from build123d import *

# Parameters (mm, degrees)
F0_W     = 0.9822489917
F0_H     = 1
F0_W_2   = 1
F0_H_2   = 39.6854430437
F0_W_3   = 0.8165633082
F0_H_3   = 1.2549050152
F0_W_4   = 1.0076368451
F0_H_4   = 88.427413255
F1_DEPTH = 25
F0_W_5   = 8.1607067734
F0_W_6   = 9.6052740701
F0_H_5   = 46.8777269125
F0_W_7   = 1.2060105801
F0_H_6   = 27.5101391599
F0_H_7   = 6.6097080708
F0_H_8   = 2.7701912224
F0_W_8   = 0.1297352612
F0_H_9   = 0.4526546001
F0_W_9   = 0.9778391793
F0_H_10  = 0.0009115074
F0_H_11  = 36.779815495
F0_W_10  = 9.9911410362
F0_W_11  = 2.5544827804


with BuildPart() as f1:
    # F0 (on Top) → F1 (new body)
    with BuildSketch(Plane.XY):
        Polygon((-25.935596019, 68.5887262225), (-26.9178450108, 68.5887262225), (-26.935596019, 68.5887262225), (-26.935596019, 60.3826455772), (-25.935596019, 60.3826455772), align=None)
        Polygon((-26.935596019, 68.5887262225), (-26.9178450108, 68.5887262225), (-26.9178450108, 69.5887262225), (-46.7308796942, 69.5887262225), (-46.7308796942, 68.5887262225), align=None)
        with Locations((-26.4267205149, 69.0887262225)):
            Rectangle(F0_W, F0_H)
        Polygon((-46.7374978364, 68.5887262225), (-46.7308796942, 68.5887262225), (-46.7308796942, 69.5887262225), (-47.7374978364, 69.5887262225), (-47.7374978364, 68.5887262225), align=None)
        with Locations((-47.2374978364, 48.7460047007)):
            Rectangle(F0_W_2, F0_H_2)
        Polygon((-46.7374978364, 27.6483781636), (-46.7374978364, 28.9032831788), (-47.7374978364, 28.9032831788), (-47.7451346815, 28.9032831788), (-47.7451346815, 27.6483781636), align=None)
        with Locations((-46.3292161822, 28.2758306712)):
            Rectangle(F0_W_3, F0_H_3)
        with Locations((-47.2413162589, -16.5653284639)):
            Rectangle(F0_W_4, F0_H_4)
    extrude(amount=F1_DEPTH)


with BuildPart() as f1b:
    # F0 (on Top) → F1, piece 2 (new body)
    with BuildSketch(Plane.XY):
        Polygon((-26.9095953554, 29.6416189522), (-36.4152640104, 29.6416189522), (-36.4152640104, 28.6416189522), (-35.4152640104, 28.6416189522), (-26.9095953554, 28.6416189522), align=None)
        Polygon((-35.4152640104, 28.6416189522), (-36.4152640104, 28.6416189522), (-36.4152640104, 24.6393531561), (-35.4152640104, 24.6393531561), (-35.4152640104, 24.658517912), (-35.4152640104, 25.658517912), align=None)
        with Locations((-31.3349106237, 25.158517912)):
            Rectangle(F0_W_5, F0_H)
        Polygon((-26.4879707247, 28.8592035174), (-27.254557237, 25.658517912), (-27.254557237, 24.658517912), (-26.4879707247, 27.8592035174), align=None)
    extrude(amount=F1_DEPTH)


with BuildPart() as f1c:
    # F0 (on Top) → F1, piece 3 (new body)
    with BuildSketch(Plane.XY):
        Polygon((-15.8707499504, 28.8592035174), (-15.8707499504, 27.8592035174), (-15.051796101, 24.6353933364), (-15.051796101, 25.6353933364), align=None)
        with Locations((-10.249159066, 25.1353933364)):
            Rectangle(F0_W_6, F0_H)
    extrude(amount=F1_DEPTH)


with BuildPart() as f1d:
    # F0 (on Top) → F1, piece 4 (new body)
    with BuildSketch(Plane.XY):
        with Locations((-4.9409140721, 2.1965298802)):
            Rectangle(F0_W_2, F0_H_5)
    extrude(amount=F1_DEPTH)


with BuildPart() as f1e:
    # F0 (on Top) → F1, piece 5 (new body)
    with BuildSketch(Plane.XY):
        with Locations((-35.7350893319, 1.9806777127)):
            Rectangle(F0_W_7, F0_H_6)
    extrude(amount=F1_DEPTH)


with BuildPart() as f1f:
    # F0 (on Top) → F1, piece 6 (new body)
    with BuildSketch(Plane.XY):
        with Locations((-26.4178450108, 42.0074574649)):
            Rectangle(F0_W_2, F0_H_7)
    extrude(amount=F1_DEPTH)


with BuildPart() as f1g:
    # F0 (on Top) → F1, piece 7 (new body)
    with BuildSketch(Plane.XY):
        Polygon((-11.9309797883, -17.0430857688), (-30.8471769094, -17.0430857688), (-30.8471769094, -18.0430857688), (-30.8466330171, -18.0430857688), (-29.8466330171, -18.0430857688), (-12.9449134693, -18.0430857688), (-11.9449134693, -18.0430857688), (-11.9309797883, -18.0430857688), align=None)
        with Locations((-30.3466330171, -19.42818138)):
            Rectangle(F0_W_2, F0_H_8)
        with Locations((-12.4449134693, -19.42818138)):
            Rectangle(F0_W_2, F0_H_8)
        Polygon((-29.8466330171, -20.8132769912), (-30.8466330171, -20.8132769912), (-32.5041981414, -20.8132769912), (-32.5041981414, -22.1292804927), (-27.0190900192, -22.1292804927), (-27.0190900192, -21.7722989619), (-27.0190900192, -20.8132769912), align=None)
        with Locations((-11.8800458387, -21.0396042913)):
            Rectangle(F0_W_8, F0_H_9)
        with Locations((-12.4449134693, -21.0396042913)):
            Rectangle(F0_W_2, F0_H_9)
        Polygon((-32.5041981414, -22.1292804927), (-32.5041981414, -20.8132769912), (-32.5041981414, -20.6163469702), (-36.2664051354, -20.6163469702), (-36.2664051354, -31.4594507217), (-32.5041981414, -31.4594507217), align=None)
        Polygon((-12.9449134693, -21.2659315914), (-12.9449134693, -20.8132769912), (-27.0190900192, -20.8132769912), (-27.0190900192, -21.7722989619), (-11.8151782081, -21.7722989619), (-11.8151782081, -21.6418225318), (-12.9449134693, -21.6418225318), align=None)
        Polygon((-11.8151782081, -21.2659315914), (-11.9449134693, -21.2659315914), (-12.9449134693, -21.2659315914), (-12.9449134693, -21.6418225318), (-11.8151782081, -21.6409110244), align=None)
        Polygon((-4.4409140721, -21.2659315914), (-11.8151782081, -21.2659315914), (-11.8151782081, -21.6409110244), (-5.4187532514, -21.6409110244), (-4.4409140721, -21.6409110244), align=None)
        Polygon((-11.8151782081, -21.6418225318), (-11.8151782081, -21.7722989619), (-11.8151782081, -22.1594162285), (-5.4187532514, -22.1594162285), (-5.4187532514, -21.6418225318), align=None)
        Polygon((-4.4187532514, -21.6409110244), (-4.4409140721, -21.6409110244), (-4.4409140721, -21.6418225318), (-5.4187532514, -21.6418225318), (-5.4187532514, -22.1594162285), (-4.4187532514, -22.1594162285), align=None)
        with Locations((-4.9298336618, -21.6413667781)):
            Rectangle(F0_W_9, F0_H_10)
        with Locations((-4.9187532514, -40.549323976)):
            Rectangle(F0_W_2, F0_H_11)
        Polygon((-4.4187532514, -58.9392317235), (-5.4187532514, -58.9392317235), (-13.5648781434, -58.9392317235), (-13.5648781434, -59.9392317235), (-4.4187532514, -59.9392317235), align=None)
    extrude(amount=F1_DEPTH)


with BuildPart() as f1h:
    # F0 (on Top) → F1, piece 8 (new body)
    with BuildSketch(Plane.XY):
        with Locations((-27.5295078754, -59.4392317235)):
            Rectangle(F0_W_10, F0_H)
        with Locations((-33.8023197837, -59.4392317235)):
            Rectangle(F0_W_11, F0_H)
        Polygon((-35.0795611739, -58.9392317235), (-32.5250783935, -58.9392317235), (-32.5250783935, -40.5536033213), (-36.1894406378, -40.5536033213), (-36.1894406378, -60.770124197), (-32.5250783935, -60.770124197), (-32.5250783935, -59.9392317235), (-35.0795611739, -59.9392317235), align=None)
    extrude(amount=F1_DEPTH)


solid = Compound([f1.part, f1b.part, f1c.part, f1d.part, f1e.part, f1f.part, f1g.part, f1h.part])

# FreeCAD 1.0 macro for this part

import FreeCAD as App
import Part
import Sketcher

V = App.Vector
Q = App.Units.Quantity


def add_polygon(sketch, points):
    """Adds a closed chain of lines whose ends are joined by coincident constraints."""
    first, n = sketch.GeometryCount, len(points)
    for a, b in zip(points, points[1:] + points[:1]):
        sketch.addGeometry(Part.LineSegment(App.Vector(*a, 0), App.Vector(*b, 0)), False)
    for i in range(n):
        sketch.addConstraint(Sketcher.Constraint("Coincident", first + i, 2, first + (i + 1) % n, 1))

doc = App.newDocument("Part")
body = doc.addObject("PartDesign::Body", "Body")

sketch1 = doc.addObject("Sketcher::SketchObject", "Sketch")
body.addObject(sketch1)
sketch1.AttachmentSupport = (doc.XY_Plane, [""])
sketch1.MapMode = "FlatFace"
add_polygon(sketch1, [(-26.936, 68.589), (-26.936, 60.383), (-25.936, 60.383), (-25.936, 68.589), (-25.936, 69.589), (-47.737, 69.589), (-47.737, 28.903), (-47.745, 28.903), (-47.745, -60.779), (-46.737, -60.779), (-46.737, 27.648), (-45.921, 27.648), (-45.921, 28.903), (-46.737, 28.903), (-46.737, 68.589)])
sketch1.addConstraint(Sketcher.Constraint("Vertical", 0))
sketch1.addConstraint(Sketcher.Constraint("Horizontal", 1))
sketch1.addConstraint(Sketcher.Constraint("Vertical", 2))
sketch1.addConstraint(Sketcher.Constraint("Vertical", 3))
sketch1.addConstraint(Sketcher.Constraint("Horizontal", 4))
sketch1.addConstraint(Sketcher.Constraint("Vertical", 5))
sketch1.addConstraint(Sketcher.Constraint("Horizontal", 6))
sketch1.addConstraint(Sketcher.Constraint("Vertical", 7))
sketch1.addConstraint(Sketcher.Constraint("Horizontal", 8))
sketch1.addConstraint(Sketcher.Constraint("Vertical", 9))
sketch1.addConstraint(Sketcher.Constraint("Horizontal", 10))
sketch1.addConstraint(Sketcher.Constraint("Vertical", 11))
sketch1.addConstraint(Sketcher.Constraint("Horizontal", 12))
sketch1.addConstraint(Sketcher.Constraint("Vertical", 13))
sketch1.addConstraint(Sketcher.Constraint("Horizontal", 14))
sketch1.addConstraint(Sketcher.Constraint("Horizontal", 6, 2, 11, 2))
sketch1.addConstraint(Sketcher.Constraint("Horizontal", 2, 2, 13, 2))
sketch1.addConstraint(Sketcher.Constraint("Vertical", 9, 2, 12, 2))
sketch1.addConstraint(Sketcher.Constraint("Equal", 1, 3))
sketch1.addConstraint(Sketcher.Constraint("DistanceX", 1, 1, 1, 2, Q("1 mm")))
sketch1.addConstraint(Sketcher.Constraint("DistanceX", 5, 2, 8, 2, Q("1 mm")))
sketch1.addConstraint(Sketcher.Constraint("DistanceX", 4, 2, 4, 1, Q("21.801902 mm")))
sketch1.addConstraint(Sketcher.Constraint("DistanceY", 0, 2, 0, 1, Q("8.206081 mm")))
sketch1.addConstraint(Sketcher.Constraint("DistanceY", 7, 2, 7, 1, Q("89.682318 mm")))
sketch1.addConstraint(Sketcher.Constraint("DistanceX", 6, 2, 10, 2, Q("1.8242 mm")))
sketch1.addConstraint(Sketcher.Constraint("DistanceX", 6, 2, 6, 1, Q("0.007637 mm")))
sketch1.addConstraint(Sketcher.Constraint("DistanceY", 5, 2, 5, 1, Q("40.685443 mm")))
sketch1.addConstraint(Sketcher.Constraint("DistanceY", 9, 1, 9, 2, Q("88.427413 mm")))
sketch1.addConstraint(Sketcher.Constraint("DistanceY", -1, 1, 9, 2, Q("27.648378 mm")))
sketch1.addConstraint(Sketcher.Constraint("DistanceX", 0, 2, -1, 1, Q("26.935596 mm")))
pad1 = doc.addObject("PartDesign::Pad", "Pad")
body.addObject(pad1)
pad1.Profile = sketch1
pad1.Length = 25
body2 = doc.addObject("PartDesign::Body", "Body001")

sketch2 = doc.addObject("Sketcher::SketchObject", "Sketch001")
body2.addObject(sketch2)
sketch2.AttachmentSupport = (doc.getObject("XY_Plane001"), [""])
sketch2.MapMode = "FlatFace"
add_polygon(sketch2, [(-26.91, 29.642), (-36.415, 29.642), (-36.415, 24.639), (-35.415, 24.639), (-35.415, 24.659), (-27.255, 24.659), (-26.488, 27.859), (-26.488, 28.859), (-27.255, 25.659), (-35.415, 25.659), (-35.415, 28.642), (-26.91, 28.642)])
sketch2.addConstraint(Sketcher.Constraint("Horizontal", 0))
sketch2.addConstraint(Sketcher.Constraint("Vertical", 1))
sketch2.addConstraint(Sketcher.Constraint("Horizontal", 2))
sketch2.addConstraint(Sketcher.Constraint("Vertical", 3))
sketch2.addConstraint(Sketcher.Constraint("Horizontal", 4))
sketch2.addConstraint(Sketcher.Constraint("Vertical", 6))
sketch2.addConstraint(Sketcher.Constraint("Horizontal", 8))
sketch2.addConstraint(Sketcher.Constraint("Vertical", 9))
sketch2.addConstraint(Sketcher.Constraint("Horizontal", 10))
sketch2.addConstraint(Sketcher.Constraint("Vertical", 11))
sketch2.addConstraint(Sketcher.Constraint("Parallel", 5, 7))
sketch2.addConstraint(Sketcher.Constraint("Vertical", 4, 2, 7, 2))
sketch2.addConstraint(Sketcher.Constraint("Vertical", 3, 2, 8, 2))
sketch2.addConstraint(Sketcher.Constraint("Equal", 2, 6))
sketch2.addConstraint(Sketcher.Constraint("Equal", 6, 11))
sketch2.addConstraint(Sketcher.Constraint("DistanceX", 2, 1, 2, 2, Q("1 mm")))
sketch2.addConstraint(Sketcher.Constraint("DistanceY", 9, 1, 9, 2, Q("2.983101 mm")))
sketch2.addConstraint(Sketcher.Constraint("DistanceX", 0, 2, 0, 1, Q("9.505669 mm")))
sketch2.addConstraint(Sketcher.Constraint("DistanceX", 4, 1, 4, 2, Q("8.160707 mm")))
sketch2.addConstraint(Sketcher.Constraint("DistanceY", 1, 2, 1, 1, Q("5.002266 mm")))
sketch2.addConstraint(Sketcher.Constraint("DistanceY", -1, 1, 0, 2, Q("29.641619 mm")))
sketch2.addConstraint(Sketcher.Constraint("DistanceX", 5, 2, -1, 1, Q("26.487971 mm")))
sketch2.addConstraint(Sketcher.Constraint("DistanceY", 2, 2, 5, 2, Q("3.21985 mm")))
sketch2.addConstraint(Sketcher.Constraint("Distance", 5, Q("3.291207 mm")))
pad2 = doc.addObject("PartDesign::Pad", "Pad001")
body2.addObject(pad2)
pad2.Profile = sketch2
pad2.Length = 25
body3 = doc.addObject("PartDesign::Body", "Body002")

sketch3 = doc.addObject("Sketcher::SketchObject", "Sketch002")
body3.addObject(sketch3)
sketch3.AttachmentSupport = (doc.getObject("XY_Plane002"), [""])
sketch3.MapMode = "FlatFace"
add_polygon(sketch3, [(-15.9, 28.9), (-15.9, 27.9), (-15.1, 24.6), (-5.4, 24.6), (-5.4, 25.6), (-15.1, 25.6)])
sketch3.addConstraint(Sketcher.Constraint("Vertical", 0))
sketch3.addConstraint(Sketcher.Constraint("Horizontal", 2))
sketch3.addConstraint(Sketcher.Constraint("Vertical", 3))
sketch3.addConstraint(Sketcher.Constraint("Horizontal", 4))
sketch3.addConstraint(Sketcher.Constraint("Parallel", 1, 5))
sketch3.addConstraint(Sketcher.Constraint("Vertical", 1, 2, 4, 2))
sketch3.addConstraint(Sketcher.Constraint("DistanceY", 0, 2, 0, 1, Q("1 mm")))
sketch3.addConstraint(Sketcher.Constraint("DistanceX", 2, 1, 2, 2, Q("9.605274 mm")))
sketch3.addConstraint(Sketcher.Constraint("DistanceX", 0, 2, -1, 1, Q("15.87075 mm")))
sketch3.addConstraint(Sketcher.Constraint("DistanceY", 1, 2, 0, 2, Q("3.22381 mm")))
sketch3.addConstraint(Sketcher.Constraint("Distance", 1, Q("3.326205 mm")))
sketch3.addConstraint(Sketcher.Constraint("DistanceY", -1, 1, 0, 2, Q("27.859204 mm")))
pad3 = doc.addObject("PartDesign::Pad", "Pad002")
body3.addObject(pad3)
pad3.Profile = sketch3
pad3.Length = 25
body4 = doc.addObject("PartDesign::Body", "Body003")

sketch4 = doc.addObject("Sketcher::SketchObject", "Sketch003")
body4.addObject(sketch4)
sketch4.AttachmentSupport = (doc.getObject("XY_Plane003"), [""])
sketch4.MapMode = "FlatFace"
add_polygon(sketch4, [(-5.4, 25.6), (-5.4, -21.2), (-4.4, -21.2), (-4.4, 25.6)])
sketch4.addConstraint(Sketcher.Constraint("Vertical", 0))
sketch4.addConstraint(Sketcher.Constraint("Horizontal", 1))
sketch4.addConstraint(Sketcher.Constraint("Vertical", 2))
sketch4.addConstraint(Sketcher.Constraint("Horizontal", 3))
sketch4.addConstraint(Sketcher.Constraint("DistanceX", 1, 1, 1, 2, Q("1 mm")))
sketch4.addConstraint(Sketcher.Constraint("DistanceY", 0, 2, 0, 1, Q("46.877727 mm")))
sketch4.addConstraint(Sketcher.Constraint("DistanceX", 0, 2, -1, 1, Q("5.440914 mm")))
sketch4.addConstraint(Sketcher.Constraint("DistanceY", 0, 2, -1, 1, Q("21.242334 mm")))
pad4 = doc.addObject("PartDesign::Pad", "Pad003")
body4.addObject(pad4)
pad4.Profile = sketch4
pad4.Length = 25
body5 = doc.addObject("PartDesign::Body", "Body004")

sketch5 = doc.addObject("Sketcher::SketchObject", "Sketch004")
body5.addObject(sketch5)
sketch5.AttachmentSupport = (doc.getObject("XY_Plane004"), [""])
sketch5.MapMode = "FlatFace"
add_polygon(sketch5, [(-36.3, 15.7), (-36.3, -11.8), (-35.1, -11.8), (-35.1, 15.7)])
sketch5.addConstraint(Sketcher.Constraint("Vertical", 0))
sketch5.addConstraint(Sketcher.Constraint("Horizontal", 1))
sketch5.addConstraint(Sketcher.Constraint("Vertical", 2))
sketch5.addConstraint(Sketcher.Constraint("Horizontal", 3))
sketch5.addConstraint(Sketcher.Constraint("DistanceX", 1, 1, 1, 2, Q("1.206011 mm")))
sketch5.addConstraint(Sketcher.Constraint("DistanceY", 0, 2, 0, 1, Q("27.510139 mm")))
sketch5.addConstraint(Sketcher.Constraint("DistanceY", 0, 2, -1, 1, Q("11.774392 mm")))
sketch5.addConstraint(Sketcher.Constraint("DistanceX", 0, 2, -1, 1, Q("36.338095 mm")))
pad5 = doc.addObject("PartDesign::Pad", "Pad004")
body5.addObject(pad5)
pad5.Profile = sketch5
pad5.Length = 25
body6 = doc.addObject("PartDesign::Body", "Body005")

sketch6 = doc.addObject("Sketcher::SketchObject", "Sketch005")
body6.addObject(sketch6)
sketch6.AttachmentSupport = (doc.getObject("XY_Plane005"), [""])
sketch6.MapMode = "FlatFace"
add_polygon(sketch6, [(-26.9, 45.3), (-26.9, 38.7), (-25.9, 38.7), (-25.9, 45.3)])
sketch6.addConstraint(Sketcher.Constraint("Vertical", 0))
sketch6.addConstraint(Sketcher.Constraint("Horizontal", 1))
sketch6.addConstraint(Sketcher.Constraint("Vertical", 2))
sketch6.addConstraint(Sketcher.Constraint("Horizontal", 3))
sketch6.addConstraint(Sketcher.Constraint("DistanceX", 1, 1, 1, 2, Q("1 mm")))
sketch6.addConstraint(Sketcher.Constraint("DistanceY", 0, 2, 0, 1, Q("6.609708 mm")))
sketch6.addConstraint(Sketcher.Constraint("DistanceY", -1, 1, 2, 2, Q("45.312311 mm")))
sketch6.addConstraint(Sketcher.Constraint("DistanceX", 0, 2, -1, 1, Q("26.917845 mm")))
pad6 = doc.addObject("PartDesign::Pad", "Pad005")
body6.addObject(pad6)
pad6.Profile = sketch6
pad6.Length = 25
body7 = doc.addObject("PartDesign::Body", "Body006")

sketch7 = doc.addObject("Sketcher::SketchObject", "Sketch006")
body7.addObject(sketch7)
sketch7.AttachmentSupport = (doc.getObject("XY_Plane006"), [""])
sketch7.MapMode = "FlatFace"
add_polygon(sketch7, [(-4.4188, -21.6409), (-4.4409, -21.6409), (-4.4409, -21.2659), (-11.8152, -21.2659), (-11.8152, -20.8133), (-11.9449, -20.8133), (-11.9449, -18.0431), (-11.931, -18.0431), (-11.931, -17.0431), (-30.8472, -17.0431), (-30.8472, -18.0431), (-30.8466, -18.0431), (-30.8466, -20.8133), (-32.5042, -20.8133), (-32.5042, -20.6163), (-36.2664, -20.6163), (-36.2664, -31.4595), (-32.5042, -31.4595), (-32.5042, -22.1293), (-27.0191, -22.1293), (-27.0191, -21.7723), (-11.8152, -21.7723), (-11.8152, -22.1594), (-5.4188, -22.1594), (-5.4188, -58.9392), (-13.5649, -58.9392), (-13.5649, -59.9392), (-4.4188, -59.9392)])
add_polygon(sketch7, [(-11.8152, -21.6409), (-5.4188, -21.6409), (-5.4188, -21.6418), (-12.9449, -21.6418)])
add_polygon(sketch7, [(-29.8466, -20.8133), (-29.8466, -18.0431), (-12.9449, -18.0431), (-12.9449, -20.8133)])
sketch7.addConstraint(Sketcher.Constraint("Horizontal", 0))
sketch7.addConstraint(Sketcher.Constraint("Vertical", 1))
sketch7.addConstraint(Sketcher.Constraint("Horizontal", 2))
sketch7.addConstraint(Sketcher.Constraint("Vertical", 3))
sketch7.addConstraint(Sketcher.Constraint("Horizontal", 4))
sketch7.addConstraint(Sketcher.Constraint("Vertical", 5))
sketch7.addConstraint(Sketcher.Constraint("Horizontal", 6))
sketch7.addConstraint(Sketcher.Constraint("Vertical", 7))
sketch7.addConstraint(Sketcher.Constraint("Horizontal", 8))
sketch7.addConstraint(Sketcher.Constraint("Vertical", 9))
sketch7.addConstraint(Sketcher.Constraint("Horizontal", 10))
sketch7.addConstraint(Sketcher.Constraint("Vertical", 11))
sketch7.addConstraint(Sketcher.Constraint("Horizontal", 12))
sketch7.addConstraint(Sketcher.Constraint("Vertical", 13))
sketch7.addConstraint(Sketcher.Constraint("Horizontal", 14))
sketch7.addConstraint(Sketcher.Constraint("Vertical", 15))
sketch7.addConstraint(Sketcher.Constraint("Horizontal", 16))
sketch7.addConstraint(Sketcher.Constraint("Vertical", 17))
sketch7.addConstraint(Sketcher.Constraint("Horizontal", 18))
sketch7.addConstraint(Sketcher.Constraint("Vertical", 19))
sketch7.addConstraint(Sketcher.Constraint("Horizontal", 20))
sketch7.addConstraint(Sketcher.Constraint("Vertical", 21))
sketch7.addConstraint(Sketcher.Constraint("Horizontal", 22))
sketch7.addConstraint(Sketcher.Constraint("Vertical", 23))
sketch7.addConstraint(Sketcher.Constraint("Horizontal", 24))
sketch7.addConstraint(Sketcher.Constraint("Vertical", 25))
sketch7.addConstraint(Sketcher.Constraint("Horizontal", 26))
sketch7.addConstraint(Sketcher.Constraint("Vertical", 27))
sketch7.addConstraint(Sketcher.Constraint("Horizontal", 28))
sketch7.addConstraint(Sketcher.Constraint("Vertical", 29))
sketch7.addConstraint(Sketcher.Constraint("Horizontal", 30))
sketch7.addConstraint(Sketcher.Constraint("Vertical", 32))
sketch7.addConstraint(Sketcher.Constraint("Horizontal", 33))
sketch7.addConstraint(Sketcher.Constraint("Vertical", 34))
sketch7.addConstraint(Sketcher.Constraint("Horizontal", 35))
sketch7.addConstraint(Sketcher.Constraint("Horizontal", 6, 2, 9, 2))
sketch7.addConstraint(Sketcher.Constraint("Horizontal", 4, 2, 11, 2))
sketch7.addConstraint(Sketcher.Constraint("Horizontal", 27, 2, 28, 2))
sketch7.addConstraint(Sketcher.Constraint("Horizontal", 10, 2, 32, 2))
sketch7.addConstraint(Sketcher.Constraint("Horizontal", 12, 2, 34, 2))
sketch7.addConstraint(Sketcher.Constraint("Vertical", 13, 2, 16, 2))
sketch7.addConstraint(Sketcher.Constraint("Vertical", 3, 2, 20, 2))
sketch7.addConstraint(Sketcher.Constraint("Vertical", 23, 2, 28, 2))
sketch7.addConstraint(Sketcher.Constraint("Vertical", 21, 2, 31, 2))
sketch7.addConstraint(Sketcher.Constraint("Vertical", 30, 2, 33, 2))
sketch7.addConstraint(Sketcher.Constraint("Equal", 9, 25))
sketch7.addConstraint(Sketcher.Constraint("DistanceY", 7, 1, 7, 2, Q("1 mm")))
sketch7.addConstraint(Sketcher.Constraint("DistanceX", 23, 2, 26, 2, Q("1 mm")))
sketch7.addConstraint(Sketcher.Constraint("DistanceX", 30, 2, 4, 2, Q("1 mm")))
sketch7.addConstraint(Sketcher.Constraint("DistanceX", 10, 2, 32, 2, Q("1 mm")))
sketch7.addConstraint(Sketcher.Constraint("DistanceX", 4, 2, 1, 2, Q("7.503999 mm")))
sketch7.addConstraint(Sketcher.Constraint("DistanceX", 8, 2, 3, 2, Q("19.031999 mm")))
sketch7.addConstraint(Sketcher.Constraint("DistanceX", 0, 2, 0, 1, Q("0.022161 mm")))
sketch7.addConstraint(Sketcher.Constraint("DistanceX", 18, 1, 18, 2, Q("5.485108 mm")))
sketch7.addConstraint(Sketcher.Constraint("DistanceX", 20, 1, 20, 2, Q("15.203912 mm")))
sketch7.addConstraint(Sketcher.Constraint("DistanceX", 33, 1, 33, 2, Q("16.90172 mm")))
sketch7.addConstraint(Sketcher.Constraint("DistanceY", 1, 1, 1, 2, Q("0.374979 mm")))
sketch7.addConstraint(Sketcher.Constraint("DistanceY", 5, 1, 5, 2, Q("2.770191 mm")))
sketch7.addConstraint(Sketcher.Constraint("DistanceY", 13, 1, 13, 2, Q("0.19693 mm")))
sketch7.addConstraint(Sketcher.Constraint("DistanceY", 17, 1, 17, 2, Q("9.33017 mm")))
sketch7.addConstraint(Sketcher.Constraint("DistanceY", 19, 1, 19, 2, Q("0.356982 mm")))
sketch7.addConstraint(Sketcher.Constraint("DistanceY", 27, 1, 27, 2, Q("38.298321 mm")))
sketch7.addConstraint(Sketcher.Constraint("DistanceY", 29, 2, 29, 1, Q("0.000912 mm")))
sketch7.addConstraint(Sketcher.Constraint("DistanceX", 12, 2, -1, 1, Q("32.504198 mm")))
sketch7.addConstraint(Sketcher.Constraint("DistanceY", 19, 2, -1, 1, Q("21.772299 mm")))
sketch7.addConstraint(Sketcher.Constraint("DistanceX", 6, 2, 3, 2, Q("0.115802 mm")))
sketch7.addConstraint(Sketcher.Constraint("DistanceX", 24, 2, 21, 2, Q("1.7497 mm")))
sketch7.addConstraint(Sketcher.Constraint("DistanceX", 2, 2, 2, 1, Q("7.374264 mm")))
sketch7.addConstraint(Sketcher.Constraint("DistanceX", 14, 2, 14, 1, Q("3.762207 mm")))
sketch7.addConstraint(Sketcher.Constraint("DistanceY", 3, 1, 3, 2, Q("0.452655 mm")))
sketch7.addConstraint(Sketcher.Constraint("DistanceY", 15, 2, 15, 1, Q("10.843104 mm")))
sketch7.addConstraint(Sketcher.Constraint("DistanceY", 21, 2, 21, 1, Q("0.387117 mm")))
pad7 = doc.addObject("PartDesign::Pad", "Pad006")
body7.addObject(pad7)
pad7.Profile = sketch7
pad7.Length = 25
body8 = doc.addObject("PartDesign::Body", "Body007")

sketch8 = doc.addObject("Sketcher::SketchObject", "Sketch007")
body8.addObject(sketch8)
sketch8.AttachmentSupport = (doc.getObject("XY_Plane007"), [""])
sketch8.MapMode = "FlatFace"
add_polygon(sketch8, [(-22.5, -59.9), (-22.5, -58.9), (-32.5, -58.9), (-32.5, -40.6), (-36.2, -40.6), (-36.2, -60.8), (-32.5, -60.8), (-32.5, -59.9)])
sketch8.addConstraint(Sketcher.Constraint("Vertical", 0))
sketch8.addConstraint(Sketcher.Constraint("Horizontal", 1))
sketch8.addConstraint(Sketcher.Constraint("Vertical", 2))
sketch8.addConstraint(Sketcher.Constraint("Horizontal", 3))
sketch8.addConstraint(Sketcher.Constraint("Vertical", 4))
sketch8.addConstraint(Sketcher.Constraint("Horizontal", 5))
sketch8.addConstraint(Sketcher.Constraint("Vertical", 6))
sketch8.addConstraint(Sketcher.Constraint("Horizontal", 7))
sketch8.addConstraint(Sketcher.Constraint("Vertical", 2, 2, 5, 2))
sketch8.addConstraint(Sketcher.Constraint("DistanceY", 0, 1, 0, 2, Q("1 mm")))
sketch8.addConstraint(Sketcher.Constraint("DistanceX", 1, 2, 1, 1, Q("9.991141 mm")))
sketch8.addConstraint(Sketcher.Constraint("DistanceY", 2, 1, 2, 2, Q("18.385628 mm")))
sketch8.addConstraint(Sketcher.Constraint("DistanceY", 4, 2, 4, 1, Q("20.216521 mm")))
sketch8.addConstraint(Sketcher.Constraint("DistanceX", 3, 2, 3, 1, Q("3.664362 mm")))
sketch8.addConstraint(Sketcher.Constraint("DistanceY", 0, 2, -1, 1, Q("58.939232 mm")))
sketch8.addConstraint(Sketcher.Constraint("DistanceX", 1, 2, -1, 1, Q("32.525078 mm")))
pad8 = doc.addObject("PartDesign::Pad", "Pad007")
body8.addObject(pad8)
pad8.Profile = sketch8
pad8.Length = 25

doc.recompute()
